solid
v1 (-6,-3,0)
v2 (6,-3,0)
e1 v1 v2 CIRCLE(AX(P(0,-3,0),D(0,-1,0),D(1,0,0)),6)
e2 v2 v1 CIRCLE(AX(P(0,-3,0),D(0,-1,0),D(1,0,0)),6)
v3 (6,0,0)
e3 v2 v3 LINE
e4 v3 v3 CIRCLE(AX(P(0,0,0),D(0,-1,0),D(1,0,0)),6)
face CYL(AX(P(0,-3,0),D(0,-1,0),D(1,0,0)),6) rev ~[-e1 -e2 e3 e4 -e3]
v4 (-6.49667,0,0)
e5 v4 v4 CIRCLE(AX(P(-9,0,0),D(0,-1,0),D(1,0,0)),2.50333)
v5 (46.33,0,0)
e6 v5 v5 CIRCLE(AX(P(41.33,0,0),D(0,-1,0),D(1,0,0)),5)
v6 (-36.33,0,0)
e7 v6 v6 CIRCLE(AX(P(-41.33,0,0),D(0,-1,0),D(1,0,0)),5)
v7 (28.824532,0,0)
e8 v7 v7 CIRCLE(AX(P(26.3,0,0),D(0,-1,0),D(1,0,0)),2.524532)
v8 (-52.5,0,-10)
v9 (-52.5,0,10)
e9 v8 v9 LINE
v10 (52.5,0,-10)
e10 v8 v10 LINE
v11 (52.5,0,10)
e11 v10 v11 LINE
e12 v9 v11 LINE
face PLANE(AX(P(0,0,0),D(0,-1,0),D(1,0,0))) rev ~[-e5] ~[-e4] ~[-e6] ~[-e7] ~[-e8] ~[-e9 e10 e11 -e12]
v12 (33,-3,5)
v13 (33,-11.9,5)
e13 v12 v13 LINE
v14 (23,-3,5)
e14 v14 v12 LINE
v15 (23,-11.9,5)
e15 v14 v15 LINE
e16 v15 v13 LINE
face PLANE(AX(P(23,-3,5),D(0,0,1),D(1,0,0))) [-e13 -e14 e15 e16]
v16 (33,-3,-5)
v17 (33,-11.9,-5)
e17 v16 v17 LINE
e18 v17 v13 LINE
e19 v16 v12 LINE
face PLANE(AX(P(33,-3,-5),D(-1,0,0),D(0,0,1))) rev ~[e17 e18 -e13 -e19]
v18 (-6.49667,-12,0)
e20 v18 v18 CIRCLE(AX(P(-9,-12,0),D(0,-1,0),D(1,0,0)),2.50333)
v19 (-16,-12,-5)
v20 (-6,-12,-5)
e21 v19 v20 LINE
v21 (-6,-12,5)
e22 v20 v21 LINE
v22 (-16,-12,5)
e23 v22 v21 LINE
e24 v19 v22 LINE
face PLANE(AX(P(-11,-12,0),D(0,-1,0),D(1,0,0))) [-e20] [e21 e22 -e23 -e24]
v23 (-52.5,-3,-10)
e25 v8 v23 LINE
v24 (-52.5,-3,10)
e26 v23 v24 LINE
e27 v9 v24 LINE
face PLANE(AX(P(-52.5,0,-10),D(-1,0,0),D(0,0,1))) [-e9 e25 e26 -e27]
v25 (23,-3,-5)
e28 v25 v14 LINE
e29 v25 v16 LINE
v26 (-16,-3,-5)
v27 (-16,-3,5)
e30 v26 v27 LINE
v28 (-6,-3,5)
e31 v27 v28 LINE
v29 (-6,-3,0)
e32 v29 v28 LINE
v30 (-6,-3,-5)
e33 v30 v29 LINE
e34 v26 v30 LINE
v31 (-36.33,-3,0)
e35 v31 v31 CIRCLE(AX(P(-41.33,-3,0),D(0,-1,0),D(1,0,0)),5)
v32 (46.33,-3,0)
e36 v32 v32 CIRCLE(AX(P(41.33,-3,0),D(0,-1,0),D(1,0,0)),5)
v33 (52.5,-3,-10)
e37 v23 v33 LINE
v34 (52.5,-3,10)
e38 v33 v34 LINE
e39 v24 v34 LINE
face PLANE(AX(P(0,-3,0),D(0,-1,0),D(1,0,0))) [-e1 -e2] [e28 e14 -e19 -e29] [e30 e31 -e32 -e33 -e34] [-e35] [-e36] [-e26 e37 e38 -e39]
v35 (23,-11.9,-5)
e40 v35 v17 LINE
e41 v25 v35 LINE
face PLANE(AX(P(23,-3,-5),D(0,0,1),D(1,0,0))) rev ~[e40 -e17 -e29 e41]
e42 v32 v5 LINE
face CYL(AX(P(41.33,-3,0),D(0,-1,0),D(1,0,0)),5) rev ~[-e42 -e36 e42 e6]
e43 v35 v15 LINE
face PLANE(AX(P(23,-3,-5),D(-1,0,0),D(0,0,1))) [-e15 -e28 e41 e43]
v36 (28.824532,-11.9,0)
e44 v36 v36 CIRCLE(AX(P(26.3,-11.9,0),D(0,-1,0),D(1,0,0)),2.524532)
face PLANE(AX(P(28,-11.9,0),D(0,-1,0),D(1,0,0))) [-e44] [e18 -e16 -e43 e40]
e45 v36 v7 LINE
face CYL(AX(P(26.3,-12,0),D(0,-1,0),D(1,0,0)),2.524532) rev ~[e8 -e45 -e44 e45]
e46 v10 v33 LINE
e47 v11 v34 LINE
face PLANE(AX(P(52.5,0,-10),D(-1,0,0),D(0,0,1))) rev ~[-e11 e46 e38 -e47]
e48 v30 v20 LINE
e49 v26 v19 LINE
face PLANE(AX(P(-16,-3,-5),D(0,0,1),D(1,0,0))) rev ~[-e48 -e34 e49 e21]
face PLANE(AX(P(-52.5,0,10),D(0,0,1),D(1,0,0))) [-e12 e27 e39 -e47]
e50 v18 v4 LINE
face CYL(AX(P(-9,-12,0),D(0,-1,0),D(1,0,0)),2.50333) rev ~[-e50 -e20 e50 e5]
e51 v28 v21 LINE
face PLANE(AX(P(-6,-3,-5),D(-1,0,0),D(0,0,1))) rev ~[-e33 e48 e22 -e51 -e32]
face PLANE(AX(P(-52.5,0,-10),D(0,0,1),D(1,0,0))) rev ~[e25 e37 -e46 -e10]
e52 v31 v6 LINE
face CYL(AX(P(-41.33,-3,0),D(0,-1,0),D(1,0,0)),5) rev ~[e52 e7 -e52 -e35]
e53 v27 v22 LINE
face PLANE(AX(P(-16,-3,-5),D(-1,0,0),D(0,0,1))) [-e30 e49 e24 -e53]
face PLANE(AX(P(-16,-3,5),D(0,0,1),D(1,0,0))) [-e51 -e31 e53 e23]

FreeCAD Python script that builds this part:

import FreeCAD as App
import Part
import Sketcher
from FreeCAD import Vector
Q = App.Units.Quantity


def add_polygon(sketch, points):
    """Adds a closed chain of lines whose ends are joined by coincident constraints."""
    first, n = sketch.GeometryCount, len(points)
    for a, b in zip(points, points[1:] + points[:1]):
        sketch.addGeometry(Part.LineSegment(App.Vector(*a, 0), App.Vector(*b, 0)), False)
    for i in range(n):
        sketch.addConstraint(Sketcher.Constraint("Coincident", first + i, 2, first + (i + 1) % n, 1))

doc = App.newDocument("Part")
body = doc.addObject("PartDesign::Body", "Body")

# Sketch on XZ plane
sketch1 = body.newObject("Sketcher::SketchObject", "Sketch")
sketch1.AttachmentSupport = (doc.getObject("XZ_Plane"), [""])
sketch1.MapMode = "FlatFace"
add_polygon(sketch1, [(-52, 10), (-52, -10), (52, -10), (52, 10)])  # lines 0-3
sketch1.addConstraint([
    Sketcher.Constraint("Vertical", 0),
    Sketcher.Constraint("Horizontal", 1),
    Sketcher.Constraint("Vertical", 2),
    Sketcher.Constraint("Horizontal", 3),
    Sketcher.Constraint("Symmetric", 0, 2, 2, 2, -1, 1),
    Sketcher.Constraint("DistanceX", 1, 1, 1, 2, Q("105 mm")),
    Sketcher.Constraint("DistanceY", 0, 2, 0, 1, Q("20 mm")),
])
pad1 = body.newObject("PartDesign::Pad", "Pad")
pad1.Profile = sketch1
pad1.Length = 3

# Sketch on XZ plane
sketch2 = body.newObject("Sketcher::SketchObject", "Sketch001")
sketch2.AttachmentSupport = (doc.getObject("XZ_Plane"), [""])
sketch2.MapMode = "FlatFace"
sketch2.AttachmentOffset = App.Placement(Vector(0, 0, 3), App.Rotation())
sketch2.addGeometry([
    Part.Circle(Vector(0, 0, 0), Vector(0, 0, 1), 6),
    Part.Circle(Vector(-41, 0, 0), Vector(0, 0, 1), 5),
    Part.Circle(Vector(41, 0, 0), Vector(0, 0, 1), 5),
], False)
sketch2.addConstraint([
    Sketcher.Constraint("Coincident", 0, 3, -1, 1),
    Sketcher.Constraint("Equal", 1, 2),
    Sketcher.Constraint("Symmetric", 1, 3, 2, 3, -1, 1),
    Sketcher.Constraint("PointOnObject", 1, 3, -1),
    Sketcher.Constraint("Diameter", 0, Q("12 mm")),
    Sketcher.Constraint("Diameter", 1, Q("10 mm")),
    Sketcher.Constraint("DistanceX", 1, 3, -1, 1, Q("41.33 mm")),
])
pocket1 = body.newObject("PartDesign::Pocket", "Pocket")
pocket1.Profile = sketch2
pocket1.Length = 25

# Sketch on XZ plane
sketch3 = body.newObject("Sketcher::SketchObject", "Sketch002")
sketch3.AttachmentSupport = (doc.getObject("XZ_Plane"), [""])
sketch3.MapMode = "FlatFace"
sketch3.AttachmentOffset = App.Placement(Vector(0, 0, 3), App.Rotation())
add_polygon(sketch3, [(23, 5), (23, -5), (33, -5), (33, 5)])  # lines 0-3
sketch3.addConstraint([
    Sketcher.Constraint("Vertical", 0),
    Sketcher.Constraint("Horizontal", 1),
    Sketcher.Constraint("Vertical", 2),
    Sketcher.Constraint("Horizontal", 3),
    Sketcher.Constraint("Equal", 3, 0),
    Sketcher.Constraint("DistanceX", 1, 1, 1, 2, Q("10 mm")),
    Sketcher.Constraint("DistanceX", -1, 1, 0, 2, Q("23 mm")),
    Sketcher.Constraint("DistanceY", 0, 2, -1, 1, Q("5 mm")),
])
pad2 = body.newObject("PartDesign::Pad", "Pad001")
pad2.Profile = sketch3
pad2.Length = 8.9

# Sketch on XZ plane
sketch4 = body.newObject("Sketcher::SketchObject", "Sketch003")
sketch4.AttachmentSupport = (doc.getObject("XZ_Plane"), [""])
sketch4.MapMode = "FlatFace"
sketch4.AttachmentOffset = App.Placement(Vector(0, 0, 3), App.Rotation())
add_polygon(sketch4, [(-16, 5), (-16, -5), (-6, -5), (-6, 5)])  # lines 0-3
sketch4.addConstraint([
    Sketcher.Constraint("Vertical", 0),
    Sketcher.Constraint("Horizontal", 1),
    Sketcher.Constraint("Vertical", 2),
    Sketcher.Constraint("Horizontal", 3),
    Sketcher.Constraint("Equal", 3, 0),
    Sketcher.Constraint("DistanceX", 1, 1, 1, 2, Q("10 mm")),
    Sketcher.Constraint("DistanceX", 0, 2, -1, 1, Q("16 mm")),
    Sketcher.Constraint("DistanceY", 0, 2, -1, 1, Q("5 mm")),
])
pad3 = body.newObject("PartDesign::Pad", "Pad002")
pad3.Profile = sketch4
pad3.Length = 9

# Sketch on XZ plane
sketch5 = body.newObject("Sketcher::SketchObject", "Sketch004")
sketch5.AttachmentSupport = (doc.getObject("XZ_Plane"), [""])
sketch5.MapMode = "FlatFace"
sketch5.AttachmentOffset = App.Placement(Vector(0, 0, 12), App.Rotation())
sketch5.addGeometry([
    Part.Circle(Vector(-9, 0, 0), Vector(0, 0, 1), 2.5),
    Part.Circle(Vector(26.3, 0, 0), Vector(0, 0, 1), 2.5),
], False)
sketch5.addConstraint([
    Sketcher.Constraint("PointOnObject", 0, 3, -1),
    Sketcher.Constraint("PointOnObject", 1, 3, -1),
    Sketcher.Constraint("DistanceX", 0, 3, -1, 1, Q("9 mm")),
    Sketcher.Constraint("DistanceX", -1, 1, 1, 3, Q("26.3 mm")),
    Sketcher.Constraint("Diameter", 0, Q("5.00666 mm")),
    Sketcher.Constraint("Diameter", 1, Q("5.049064 mm")),
])
pocket2 = body.newObject("PartDesign::Pocket", "Pocket001")
pocket2.Profile = sketch5
pocket2.Length = 25

doc.recompute()
